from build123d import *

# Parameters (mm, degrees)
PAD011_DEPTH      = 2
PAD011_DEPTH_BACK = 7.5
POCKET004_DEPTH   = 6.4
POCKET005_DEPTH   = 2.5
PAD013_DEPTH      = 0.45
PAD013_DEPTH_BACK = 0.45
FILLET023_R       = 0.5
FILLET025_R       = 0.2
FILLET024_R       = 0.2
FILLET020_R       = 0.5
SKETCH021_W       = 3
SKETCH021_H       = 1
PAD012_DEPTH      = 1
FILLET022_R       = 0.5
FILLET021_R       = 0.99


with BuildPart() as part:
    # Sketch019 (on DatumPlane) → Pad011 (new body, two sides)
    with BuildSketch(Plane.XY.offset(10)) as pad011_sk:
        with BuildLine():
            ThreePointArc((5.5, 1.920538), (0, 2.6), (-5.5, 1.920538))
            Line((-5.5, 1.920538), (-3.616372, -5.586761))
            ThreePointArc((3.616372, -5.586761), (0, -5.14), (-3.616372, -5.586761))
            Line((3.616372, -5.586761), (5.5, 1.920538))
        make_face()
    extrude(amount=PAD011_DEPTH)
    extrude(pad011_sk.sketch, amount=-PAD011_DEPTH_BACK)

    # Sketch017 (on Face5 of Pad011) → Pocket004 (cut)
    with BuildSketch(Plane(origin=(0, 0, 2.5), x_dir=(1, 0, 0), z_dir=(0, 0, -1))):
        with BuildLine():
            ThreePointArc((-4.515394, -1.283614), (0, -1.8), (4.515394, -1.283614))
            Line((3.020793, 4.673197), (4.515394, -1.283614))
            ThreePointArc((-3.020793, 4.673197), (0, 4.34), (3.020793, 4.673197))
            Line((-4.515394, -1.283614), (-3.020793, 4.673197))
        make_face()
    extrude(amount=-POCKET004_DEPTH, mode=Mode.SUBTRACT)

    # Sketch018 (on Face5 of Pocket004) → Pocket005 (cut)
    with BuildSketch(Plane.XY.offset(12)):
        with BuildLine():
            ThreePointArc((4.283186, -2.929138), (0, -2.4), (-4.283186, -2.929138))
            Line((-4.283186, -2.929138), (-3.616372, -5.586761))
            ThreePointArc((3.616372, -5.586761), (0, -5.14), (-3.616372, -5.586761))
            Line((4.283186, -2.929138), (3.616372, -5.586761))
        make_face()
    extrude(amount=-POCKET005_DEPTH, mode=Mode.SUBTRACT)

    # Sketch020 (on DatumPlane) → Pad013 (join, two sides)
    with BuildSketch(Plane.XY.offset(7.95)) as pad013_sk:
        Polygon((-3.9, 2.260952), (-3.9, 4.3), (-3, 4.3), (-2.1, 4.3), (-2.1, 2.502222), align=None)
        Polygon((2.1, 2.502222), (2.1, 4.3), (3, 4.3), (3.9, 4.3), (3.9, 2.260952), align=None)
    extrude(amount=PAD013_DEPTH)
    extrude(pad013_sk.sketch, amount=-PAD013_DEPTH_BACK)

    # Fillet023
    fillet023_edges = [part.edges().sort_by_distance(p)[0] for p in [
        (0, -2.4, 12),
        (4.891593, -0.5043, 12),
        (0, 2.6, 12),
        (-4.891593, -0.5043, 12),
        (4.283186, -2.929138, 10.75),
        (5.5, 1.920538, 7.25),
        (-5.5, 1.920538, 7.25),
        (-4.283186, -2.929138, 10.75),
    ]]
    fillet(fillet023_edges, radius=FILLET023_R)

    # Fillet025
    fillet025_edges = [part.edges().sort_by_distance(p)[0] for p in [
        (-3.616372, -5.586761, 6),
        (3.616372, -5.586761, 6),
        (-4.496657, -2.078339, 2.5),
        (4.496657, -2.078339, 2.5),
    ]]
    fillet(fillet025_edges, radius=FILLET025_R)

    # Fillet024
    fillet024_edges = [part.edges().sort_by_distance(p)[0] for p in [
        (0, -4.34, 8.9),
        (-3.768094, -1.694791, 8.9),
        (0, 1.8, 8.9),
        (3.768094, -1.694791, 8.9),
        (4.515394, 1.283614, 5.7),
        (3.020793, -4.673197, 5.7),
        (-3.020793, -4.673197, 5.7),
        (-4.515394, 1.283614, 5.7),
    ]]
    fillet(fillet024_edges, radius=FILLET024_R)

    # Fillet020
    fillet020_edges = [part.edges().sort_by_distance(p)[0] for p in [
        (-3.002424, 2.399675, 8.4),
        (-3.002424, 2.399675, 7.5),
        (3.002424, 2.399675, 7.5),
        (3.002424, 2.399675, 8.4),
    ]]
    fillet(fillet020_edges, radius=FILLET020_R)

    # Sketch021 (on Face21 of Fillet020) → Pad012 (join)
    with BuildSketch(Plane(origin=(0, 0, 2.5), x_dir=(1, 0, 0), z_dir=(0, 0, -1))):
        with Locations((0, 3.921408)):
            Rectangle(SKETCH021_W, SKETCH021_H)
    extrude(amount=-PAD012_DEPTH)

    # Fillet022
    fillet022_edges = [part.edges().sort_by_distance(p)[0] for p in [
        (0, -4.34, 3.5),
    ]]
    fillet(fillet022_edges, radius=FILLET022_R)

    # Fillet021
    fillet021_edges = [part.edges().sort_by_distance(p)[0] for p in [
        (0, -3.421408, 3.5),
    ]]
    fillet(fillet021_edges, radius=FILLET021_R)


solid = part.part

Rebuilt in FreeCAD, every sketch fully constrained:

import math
import FreeCAD as App
import Part
import Sketcher

V = App.Vector
Q = App.Units.Quantity


def edges_at(feature, points):
    """Names of the edges that pass closest to the given points."""
    edges = feature.Shape.Edges
    near = lambda p: min(range(len(edges)), key=lambda i: edges[i].distToShape(Part.Vertex(*p))[0])
    return sorted({f"Edge{near(p) + 1}" for p in points})

doc = App.newDocument("Part")
params = doc.addObject("Spreadsheet::Sheet", "Params")
for row, (alias, value) in enumerate([
    ("sketch1_length", "7.74 mm"),
    ("pad1_length", "2 mm"),
    ("pad1_length2", "7.5 mm"),
    ("pocket1_length", "6.4 mm"),
    ("sketch3_length", "2.74 mm"),
    ("pocket2_length", "2.5 mm"),
    ("sketch4_width", "1.8 mm"),
    ("pad2_length", "0.45 mm"),
    ("pad2_length2", "0.45 mm"),
    ("fillet_radius", "0.5 mm"),
    ("fillet2_radius", "0.2 mm"),
    ("fillet3_radius", "0.2 mm"),
    ("fillet4_radius", "0.5 mm"),
    ("sketch5_width", "3 mm"),
    ("sketch5_height", "1 mm"),
    ("pad3_length", "1 mm"),
    ("fillet5_radius", "0.5 mm"),
    ("fillet6_radius", "0.99 mm"),
], start=1):
    params.set(f"A{row}", alias)
    params.set(f"B{row}", "=" + value)
    params.setAlias(f"B{row}", alias)

body = doc.addObject("PartDesign::Body", "Body")

sketch1 = body.newObject("Sketcher::SketchObject", "Sketch")
sketch1.AttachmentSupport = (doc.getObject("XY_Plane"), [""])
sketch1.MapMode = "FlatFace"
sketch1.AttachmentOffset = App.Placement(V(0, 0, 10), App.Rotation())
sketch1.addGeometry([
    Part.ArcOfCircle(Part.Circle(V(0, -19.99999, 0), V(0, 0, 1), 22.59999), math.radians(75.914891), math.radians(104.085109)),
    Part.LineSegment(V(-5.5, 1.920538, 0), V(-3.616372, -5.586761, 0)),
    Part.ArcOfCircle(Part.Circle(V(0, -20.000005, 0), V(0, 0, 1), 14.860005), math.radians(75.914901), math.radians(104.085099)),
    Part.LineSegment(V(3.616372, -5.586761, 0), V(5.5, 1.920538, 0)),
], False)
sketch1.addConstraint([
    Sketcher.Constraint("Coincident", 0, 2, 1, 1),
    Sketcher.Constraint("Coincident", 1, 2, 2, 2),
    Sketcher.Constraint("Coincident", 2, 1, 3, 1),
    Sketcher.Constraint("Coincident", 3, 2, 0, 1),
    Sketcher.Constraint("Symmetric", 1, 2, 2, 1, -2),
    Sketcher.Constraint("Symmetric", 0, 2, 3, 2, -2),
    Sketcher.Constraint("DistanceX", 0, 2, 3, 2, Q("11 mm")),
    Sketcher.Constraint("Distance", 1, Q("7.74 mm")),
    Sketcher.Constraint("Radius", 0, Q("22.59999 mm")),
    Sketcher.Constraint("Radius", 2, Q("14.860005 mm")),
    Sketcher.Constraint("DistanceY", 1, 2, 0, 2, Q("7.507299 mm")),
    Sketcher.Constraint("DistanceY", 0, 3, -1, 1, Q("19.99999 mm")),
])
sketch1.setExpression("Constraints[7]", "Params.sketch1_length")
pad1 = body.newObject("PartDesign::Pad", "Pad")
pad1.Profile = sketch1
pad1.Type = "TwoLengths"
pad1.setExpression("Length", "Params.pad1_length")
pad1.setExpression("Length2", "Params.pad1_length2")

sketch2 = body.newObject("Sketcher::SketchObject", "Sketch001")
sketch2.AttachmentSupport = (doc.getObject("XY_Plane"), [""])
sketch2.MapMode = "FlatFace"
sketch2.AttachmentOffset = App.Placement(V(0, 0, 2.5), App.Rotation())
sketch2.addGeometry([
    Part.ArcOfCircle(Part.Circle(V(0, -18.199998, 0), V(0, 0, 1), 19.999998), math.radians(76.951855), math.radians(103.048145)),
    Part.LineSegment(V(4.515394, 1.283614, 0), V(3.020793, -4.673197, 0)),
    Part.ArcOfCircle(Part.Circle(V(0, -18.199985, 0), V(0, 0, 1), 13.859985), math.radians(77.411305), math.radians(102.588695)),
    Part.LineSegment(V(-3.020793, -4.673197, 0), V(-4.515394, 1.283614, 0)),
], False)
sketch2.addConstraint([
    Sketcher.Constraint("Coincident", 0, 1, 1, 1),
    Sketcher.Constraint("Coincident", 1, 2, 2, 1),
    Sketcher.Constraint("Coincident", 2, 2, 3, 1),
    Sketcher.Constraint("Coincident", 3, 2, 0, 2),
    Sketcher.Constraint("Symmetric", 1, 2, 2, 2, -2),
    Sketcher.Constraint("Symmetric", 0, 1, 3, 2, -2),
    Sketcher.Constraint("Radius", 0, Q("19.999998 mm")),
    Sketcher.Constraint("Radius", 2, Q("13.859985 mm")),
    Sketcher.Constraint("DistanceY", 2, 3, 0, 1, Q("19.483599 mm")),
    Sketcher.Constraint("DistanceX", 1, 2, 0, 1, Q("1.494601 mm")),
    Sketcher.Constraint("DistanceY", 0, 3, 1, 2, Q("13.526801 mm")),
    Sketcher.Constraint("DistanceY", 0, 3, -1, 1, Q("18.199998 mm")),
])
pocket1 = body.newObject("PartDesign::Pocket", "Pocket")
pocket1.Profile = sketch2
pocket1.setExpression("Length", "Params.pocket1_length")
pocket1.Reversed = True

sketch3 = body.newObject("Sketcher::SketchObject", "Sketch002")
sketch3.AttachmentSupport = (doc.getObject("XY_Plane"), [""])
sketch3.MapMode = "FlatFace"
sketch3.AttachmentOffset = App.Placement(V(0, 0, 12), App.Rotation())
sketch3.addGeometry([
    Part.ArcOfCircle(Part.Circle(V(0, -20.000011, 0), V(0, 0, 1), 17.600011), math.radians(75.914906), math.radians(104.085094)),
    Part.LineSegment(V(-4.283186, -2.929138, 0), V(-3.616372, -5.586761, 0)),
    Part.ArcOfCircle(Part.Circle(V(0, -20.000005, 0), V(0, 0, 1), 14.860005), math.radians(75.914901), math.radians(104.085099)),
    Part.LineSegment(V(3.616372, -5.586761, 0), V(4.283186, -2.929138, 0)),
], False)
sketch3.addConstraint([
    Sketcher.Constraint("Coincident", 0, 2, 1, 1),
    Sketcher.Constraint("Coincident", 1, 2, 2, 2),
    Sketcher.Constraint("Coincident", 2, 1, 3, 1),
    Sketcher.Constraint("Coincident", 3, 2, 0, 1),
    Sketcher.Constraint("Coincident", 2, 3, 0, 3),
    Sketcher.Constraint("Symmetric", 1, 2, 2, 1, -2),
    Sketcher.Constraint("Horizontal", 0, 2, 3, 2),
    Sketcher.Constraint("Distance", 1, Q("2.74 mm")),
    Sketcher.Constraint("Radius", 0, Q("17.600011 mm")),
    Sketcher.Constraint("DistanceY", 0, 3, -1, 1, Q("20.000011 mm")),
    Sketcher.Constraint("DistanceY", 1, 2, -1, 1, Q("5.586761 mm")),
    Sketcher.Constraint("DistanceY", 3, 2, -1, 1, Q("2.929138 mm")),
])
sketch3.setExpression("Constraints[7]", "Params.sketch3_length")
pocket2 = body.newObject("PartDesign::Pocket", "Pocket001")
pocket2.Profile = sketch3
pocket2.setExpression("Length", "Params.pocket2_length")

sketch4 = body.newObject("Sketcher::SketchObject", "Sketch003")
sketch4.AttachmentSupport = (doc.getObject("XY_Plane"), [""])
sketch4.MapMode = "FlatFace"
sketch4.AttachmentOffset = App.Placement(V(0, 0, 7.95), App.Rotation())
sketch4.addGeometry([
    Part.LineSegment(V(-3.9, 4.3, 0), V(-3.9, 2.260952, 0)),
    Part.LineSegment(V(-3.9, 2.260952, 0), V(-2.1, 2.502222, 0)),
    Part.LineSegment(V(-2.1, 2.502222, 0), V(-2.1, 4.3, 0)),
    Part.LineSegment(V(-2.1, 4.3, 0), V(-3.9, 4.3, 0)),
    Part.LineSegment(V(2.1, 4.3, 0), V(2.1, 2.502222, 0)),
    Part.LineSegment(V(2.1, 2.502222, 0), V(3.9, 2.260952, 0)),
    Part.LineSegment(V(3.9, 2.260952, 0), V(3.9, 4.3, 0)),
    Part.LineSegment(V(3.9, 4.3, 0), V(2.1, 4.3, 0)),
], False)
sketch4.addConstraint([
    Sketcher.Constraint("Coincident", 0, 2, 1, 1),
    Sketcher.Constraint("Coincident", 1, 2, 2, 1),
    Sketcher.Constraint("Coincident", 2, 2, 3, 1),
    Sketcher.Constraint("Coincident", 3, 2, 0, 1),
    Sketcher.Constraint("Coincident", 4, 2, 5, 1),
    Sketcher.Constraint("Coincident", 5, 2, 6, 1),
    Sketcher.Constraint("Coincident", 6, 2, 7, 1),
    Sketcher.Constraint("Coincident", 7, 2, 4, 1),
    Sketcher.Constraint("Vertical", 0),
    Sketcher.Constraint("Vertical", 2),
    Sketcher.Constraint("Horizontal", 3),
    Sketcher.Constraint("Vertical", 4),
    Sketcher.Constraint("Vertical", 6),
    Sketcher.Constraint("Horizontal", 7),
    Sketcher.Constraint("Symmetric", 1, 2, 4, 2, -2),
    Sketcher.Constraint("Symmetric", 0, 2, 5, 2, -2),
    Sketcher.Constraint("Horizontal", 3, 2, 6, 2),
    Sketcher.Constraint("DistanceX", 3, 2, 3, 1, Q("1.8 mm")),
    Sketcher.Constraint("DistanceX", 0, 2, 4, 2, Q("6 mm")),
    Sketcher.Constraint("DistanceY", -1, 1, 2, 2, Q("4.3 mm")),
    Sketcher.Constraint("DistanceY", 0, 2, 0, 1, Q("2.039048 mm")),
    Sketcher.Constraint("DistanceY", 2, 1, 2, 2, Q("1.797778 mm")),
])
sketch4.setExpression("Constraints[17]", "Params.sketch4_width")
pad2 = body.newObject("PartDesign::Pad", "Pad001")
pad2.Profile = sketch4
pad2.Type = "TwoLengths"
pad2.setExpression("Length", "Params.pad2_length")
pad2.setExpression("Length2", "Params.pad2_length2")
doc.recompute()

fillet = body.newObject("PartDesign::Fillet", "Fillet")
fillet.Base = (pad2, edges_at(pad2, [
    (0, -2.4, 12),
    (4.892, -0.504, 12),
    (0, 2.6, 12),
    (-4.892, -0.504, 12),
    (4.283, -2.929, 10.75),
    (5.5, 1.921, 7.25),
    (-5.5, 1.921, 7.25),
    (-4.283, -2.929, 10.75),
]))
fillet.setExpression("Radius", "Params.fillet_radius")
doc.recompute()

fillet2 = body.newObject("PartDesign::Fillet", "Fillet001")
fillet2.Base = (fillet, edges_at(fillet, [
    (-3.616, -5.587, 6),
    (3.616, -5.587, 6),
    (-4.497, -2.078, 2.5),
    (4.497, -2.078, 2.5),
]))
fillet2.setExpression("Radius", "Params.fillet2_radius")
doc.recompute()

fillet3 = body.newObject("PartDesign::Fillet", "Fillet002")
fillet3.Base = (fillet2, edges_at(fillet2, [
    (0, -4.34, 8.9),
    (-3.768, -1.695, 8.9),
    (0, 1.8, 8.9),
    (3.768, -1.695, 8.9),
    (4.515, 1.284, 5.7),
    (3.021, -4.673, 5.7),
    (-3.021, -4.673, 5.7),
    (-4.515, 1.284, 5.7),
]))
fillet3.setExpression("Radius", "Params.fillet3_radius")
doc.recompute()

fillet4 = body.newObject("PartDesign::Fillet", "Fillet003")
fillet4.Base = (fillet3, edges_at(fillet3, [
    (-3.002, 2.4, 8.4),
    (-3.002, 2.4, 7.5),
    (3.002, 2.4, 7.5),
    (3.002, 2.4, 8.4),
]))
fillet4.setExpression("Radius", "Params.fillet4_radius")

sketch5 = body.newObject("Sketcher::SketchObject", "Sketch004")
sketch5.AttachmentSupport = (doc.getObject("XY_Plane"), [""])
sketch5.MapMode = "FlatFace"
sketch5.AttachmentOffset = App.Placement(V(0, 0, 2.5), App.Rotation())
sketch5.addGeometry([
    Part.LineSegment(V(-1.5, -4.421408, 0), V(-1.5, -3.421408, 0)),
    Part.LineSegment(V(-1.5, -3.421408, 0), V(1.5, -3.421408, 0)),
    Part.LineSegment(V(1.5, -3.421408, 0), V(1.5, -4.421408, 0)),
    Part.LineSegment(V(1.5, -4.421408, 0), V(-1.5, -4.421408, 0)),
], False)
sketch5.addConstraint([
    Sketcher.Constraint("Coincident", 0, 2, 1, 1),
    Sketcher.Constraint("Coincident", 1, 2, 2, 1),
    Sketcher.Constraint("Coincident", 2, 2, 3, 1),
    Sketcher.Constraint("Coincident", 3, 2, 0, 1),
    Sketcher.Constraint("Vertical", 0),
    Sketcher.Constraint("Horizontal", 1),
    Sketcher.Constraint("Vertical", 2),
    Sketcher.Constraint("Horizontal", 3),
    Sketcher.Constraint("DistanceX", 1, 1, 1, 2, Q("3 mm")),
    Sketcher.Constraint("DistanceY", 0, 1, 0, 2, Q("1 mm")),
    Sketcher.Constraint("DistanceX", 0, 2, -1, 1, Q("1.5 mm")),
    Sketcher.Constraint("DistanceY", 0, 2, -1, 1, Q("3.421408 mm")),
])
sketch5.setExpression("Constraints[8]", "Params.sketch5_width")
sketch5.setExpression("Constraints[9]", "Params.sketch5_height")
pad3 = body.newObject("PartDesign::Pad", "Pad002")
pad3.Profile = sketch5
pad3.setExpression("Length", "Params.pad3_length")
doc.recompute()

fillet5 = body.newObject("PartDesign::Fillet", "Fillet004")
fillet5.Base = (pad3, edges_at(pad3, [(0, -4.34, 3.5)]))
fillet5.setExpression("Radius", "Params.fillet5_radius")
doc.recompute()

fillet6 = body.newObject("PartDesign::Fillet", "Fillet005")
fillet6.Base = (fillet5, edges_at(fillet5, [(0, -3.421, 3.5)]))
fillet6.setExpression("Radius", "Params.fillet6_radius")

doc.recompute()
